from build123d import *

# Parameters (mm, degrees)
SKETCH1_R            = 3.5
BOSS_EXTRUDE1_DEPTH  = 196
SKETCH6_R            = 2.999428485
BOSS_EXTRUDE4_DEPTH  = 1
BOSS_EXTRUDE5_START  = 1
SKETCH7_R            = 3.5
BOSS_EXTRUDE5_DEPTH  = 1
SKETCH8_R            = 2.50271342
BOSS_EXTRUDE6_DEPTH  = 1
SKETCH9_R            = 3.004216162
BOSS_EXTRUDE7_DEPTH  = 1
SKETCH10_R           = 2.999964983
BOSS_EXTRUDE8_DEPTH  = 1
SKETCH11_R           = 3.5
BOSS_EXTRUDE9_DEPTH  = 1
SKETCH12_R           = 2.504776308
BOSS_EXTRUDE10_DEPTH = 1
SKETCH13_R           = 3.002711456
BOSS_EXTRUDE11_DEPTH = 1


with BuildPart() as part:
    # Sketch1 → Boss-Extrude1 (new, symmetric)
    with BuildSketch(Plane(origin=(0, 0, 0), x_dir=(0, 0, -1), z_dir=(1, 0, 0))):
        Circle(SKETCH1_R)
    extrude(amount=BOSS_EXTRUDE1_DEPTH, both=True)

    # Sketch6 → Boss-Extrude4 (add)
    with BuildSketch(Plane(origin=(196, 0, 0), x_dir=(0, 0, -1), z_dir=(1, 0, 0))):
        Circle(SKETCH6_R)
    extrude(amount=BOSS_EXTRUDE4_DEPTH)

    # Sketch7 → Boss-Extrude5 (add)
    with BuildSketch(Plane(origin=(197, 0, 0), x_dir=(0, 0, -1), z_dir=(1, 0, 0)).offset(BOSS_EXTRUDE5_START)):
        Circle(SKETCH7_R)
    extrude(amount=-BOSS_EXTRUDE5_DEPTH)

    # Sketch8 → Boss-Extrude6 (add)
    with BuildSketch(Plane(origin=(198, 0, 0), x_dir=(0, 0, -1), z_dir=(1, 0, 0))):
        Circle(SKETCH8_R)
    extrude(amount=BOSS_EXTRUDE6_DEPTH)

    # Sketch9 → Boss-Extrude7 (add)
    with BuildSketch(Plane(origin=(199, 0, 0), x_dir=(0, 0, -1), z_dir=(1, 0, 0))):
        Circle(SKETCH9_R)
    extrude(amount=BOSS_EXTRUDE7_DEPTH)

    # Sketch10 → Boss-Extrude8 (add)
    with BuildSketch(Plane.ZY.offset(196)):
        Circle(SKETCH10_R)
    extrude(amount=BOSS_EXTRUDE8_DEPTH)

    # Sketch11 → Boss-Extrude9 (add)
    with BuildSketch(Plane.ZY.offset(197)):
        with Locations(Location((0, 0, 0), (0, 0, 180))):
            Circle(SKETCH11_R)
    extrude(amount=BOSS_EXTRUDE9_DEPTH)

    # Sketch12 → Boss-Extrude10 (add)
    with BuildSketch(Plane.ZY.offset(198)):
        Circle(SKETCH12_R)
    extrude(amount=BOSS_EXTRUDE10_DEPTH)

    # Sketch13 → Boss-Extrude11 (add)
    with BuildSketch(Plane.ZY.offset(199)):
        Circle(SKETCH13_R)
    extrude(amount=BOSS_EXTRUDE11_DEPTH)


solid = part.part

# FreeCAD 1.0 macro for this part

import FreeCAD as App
import Part
import Sketcher
from FreeCAD import Vector

doc = App.newDocument("Part")
body = doc.addObject("PartDesign::Body", "Body")

# Sketch on YZ plane
sketch1 = body.newObject("Sketcher::SketchObject", "Sketch")
sketch1.AttachmentSupport = (doc.getObject("YZ_Plane"), [""])
sketch1.MapMode = "FlatFace"
sketch1.addGeometry(Part.Circle(Vector(0, 0, 0), Vector(0, 0, 1), 3.5), False)
sketch1.addConstraint(Sketcher.Constraint("Coincident", 0, 3, -1, 1))
sketch1.addConstraint(Sketcher.Constraint("Diameter", 0, 7.0))
pad1 = body.newObject("PartDesign::Pad", "Pad")
pad1.Profile = sketch1
pad1.Length = 392
pad1.Midplane = True

# Sketch on YZ plane
sketch2 = body.newObject("Sketcher::SketchObject", "Sketch001")
sketch2.AttachmentSupport = (doc.getObject("YZ_Plane"), [""])
sketch2.MapMode = "FlatFace"
sketch2.AttachmentOffset = App.Placement(Vector(0, 0, 196), App.Rotation())
sketch2.addGeometry(Part.Circle(Vector(0, 0, 0), Vector(0, 0, 1), 3), False)
sketch2.addConstraint(Sketcher.Constraint("Coincident", 0, 3, -1, 1))
sketch2.addConstraint(Sketcher.Constraint("Diameter", 0, 5.998857))
pad2 = body.newObject("PartDesign::Pad", "Pad001")
pad2.Profile = sketch2
pad2.Length = 1

# Sketch on YZ plane
sketch3 = body.newObject("Sketcher::SketchObject", "Sketch002")
sketch3.AttachmentSupport = (doc.getObject("YZ_Plane"), [""])
sketch3.MapMode = "FlatFace"
sketch3.AttachmentOffset = App.Placement(Vector(0, 0, 198), App.Rotation())
sketch3.addGeometry(Part.Circle(Vector(0, 0, 0), Vector(0, 0, 1), 3.5), False)
sketch3.addConstraint(Sketcher.Constraint("Coincident", 0, 3, -1, 1))
sketch3.addConstraint(Sketcher.Constraint("Diameter", 0, 7.0))
pad3 = body.newObject("PartDesign::Pad", "Pad002")
pad3.Profile = sketch3
pad3.Length = 1
pad3.Reversed = True

# Sketch on YZ plane
sketch4 = body.newObject("Sketcher::SketchObject", "Sketch003")
sketch4.AttachmentSupport = (doc.getObject("YZ_Plane"), [""])
sketch4.MapMode = "FlatFace"
sketch4.AttachmentOffset = App.Placement(Vector(0, 0, 198), App.Rotation())
sketch4.addGeometry(Part.Circle(Vector(0, 0, 0), Vector(0, 0, 1), 2.5), False)
sketch4.addConstraint(Sketcher.Constraint("Coincident", 0, 3, -1, 1))
sketch4.addConstraint(Sketcher.Constraint("Diameter", 0, 5.005427))
pad4 = body.newObject("PartDesign::Pad", "Pad003")
pad4.Profile = sketch4
pad4.Length = 1

# Sketch on YZ plane
sketch5 = body.newObject("Sketcher::SketchObject", "Sketch004")
sketch5.AttachmentSupport = (doc.getObject("YZ_Plane"), [""])
sketch5.MapMode = "FlatFace"
sketch5.AttachmentOffset = App.Placement(Vector(0, 0, 199), App.Rotation())
sketch5.addGeometry(Part.Circle(Vector(0, 0, 0), Vector(0, 0, 1), 3), False)
sketch5.addConstraint(Sketcher.Constraint("Coincident", 0, 3, -1, 1))
sketch5.addConstraint(Sketcher.Constraint("Diameter", 0, 6.008432))
pad5 = body.newObject("PartDesign::Pad", "Pad004")
pad5.Profile = sketch5
pad5.Length = 1

# Sketch on YZ plane
sketch6 = body.newObject("Sketcher::SketchObject", "Sketch005")
sketch6.AttachmentSupport = (doc.getObject("YZ_Plane"), [""])
sketch6.MapMode = "FlatFace"
sketch6.AttachmentOffset = App.Placement(Vector(0, 0, -196), App.Rotation())
sketch6.addGeometry(Part.Circle(Vector(0, 0, 0), Vector(0, 0, 1), 3), False)
sketch6.addConstraint(Sketcher.Constraint("Coincident", 0, 3, -1, 1))
sketch6.addConstraint(Sketcher.Constraint("Diameter", 0, 5.99993))
pad6 = body.newObject("PartDesign::Pad", "Pad005")
pad6.Profile = sketch6
pad6.Length = 1
pad6.Reversed = True

# Sketch on YZ plane
sketch7 = body.newObject("Sketcher::SketchObject", "Sketch006")
sketch7.AttachmentSupport = (doc.getObject("YZ_Plane"), [""])
sketch7.MapMode = "FlatFace"
sketch7.AttachmentOffset = App.Placement(Vector(0, 0, -197), App.Rotation())
sketch7.addGeometry(Part.Circle(Vector(0, 0, 0), Vector(0, 0, 1), 3.5), False)
sketch7.addConstraint(Sketcher.Constraint("Coincident", 0, 3, -1, 1))
sketch7.addConstraint(Sketcher.Constraint("Diameter", 0, 7.0))
pad7 = body.newObject("PartDesign::Pad", "Pad006")
pad7.Profile = sketch7
pad7.Length = 1
pad7.Reversed = True

# Sketch on YZ plane
sketch8 = body.newObject("Sketcher::SketchObject", "Sketch007")
sketch8.AttachmentSupport = (doc.getObject("YZ_Plane"), [""])
sketch8.MapMode = "FlatFace"
sketch8.AttachmentOffset = App.Placement(Vector(0, 0, -198), App.Rotation())
sketch8.addGeometry(Part.Circle(Vector(0, 0, 0), Vector(0, 0, 1), 2.5), False)
sketch8.addConstraint(Sketcher.Constraint("Coincident", 0, 3, -1, 1))
sketch8.addConstraint(Sketcher.Constraint("Diameter", 0, 5.009553))
pad8 = body.newObject("PartDesign::Pad", "Pad007")
pad8.Profile = sketch8
pad8.Length = 1
pad8.Reversed = True

# Sketch on YZ plane
sketch9 = body.newObject("Sketcher::SketchObject", "Sketch008")
sketch9.AttachmentSupport = (doc.getObject("YZ_Plane"), [""])
sketch9.MapMode = "FlatFace"
sketch9.AttachmentOffset = App.Placement(Vector(0, 0, -199), App.Rotation())
sketch9.addGeometry(Part.Circle(Vector(0, 0, 0), Vector(0, 0, 1), 3), False)
sketch9.addConstraint(Sketcher.Constraint("Coincident", 0, 3, -1, 1))
sketch9.addConstraint(Sketcher.Constraint("Diameter", 0, 6.005423))
pad9 = body.newObject("PartDesign::Pad", "Pad008")
pad9.Profile = sketch9
pad9.Length = 1
pad9.Reversed = True

doc.recompute()
